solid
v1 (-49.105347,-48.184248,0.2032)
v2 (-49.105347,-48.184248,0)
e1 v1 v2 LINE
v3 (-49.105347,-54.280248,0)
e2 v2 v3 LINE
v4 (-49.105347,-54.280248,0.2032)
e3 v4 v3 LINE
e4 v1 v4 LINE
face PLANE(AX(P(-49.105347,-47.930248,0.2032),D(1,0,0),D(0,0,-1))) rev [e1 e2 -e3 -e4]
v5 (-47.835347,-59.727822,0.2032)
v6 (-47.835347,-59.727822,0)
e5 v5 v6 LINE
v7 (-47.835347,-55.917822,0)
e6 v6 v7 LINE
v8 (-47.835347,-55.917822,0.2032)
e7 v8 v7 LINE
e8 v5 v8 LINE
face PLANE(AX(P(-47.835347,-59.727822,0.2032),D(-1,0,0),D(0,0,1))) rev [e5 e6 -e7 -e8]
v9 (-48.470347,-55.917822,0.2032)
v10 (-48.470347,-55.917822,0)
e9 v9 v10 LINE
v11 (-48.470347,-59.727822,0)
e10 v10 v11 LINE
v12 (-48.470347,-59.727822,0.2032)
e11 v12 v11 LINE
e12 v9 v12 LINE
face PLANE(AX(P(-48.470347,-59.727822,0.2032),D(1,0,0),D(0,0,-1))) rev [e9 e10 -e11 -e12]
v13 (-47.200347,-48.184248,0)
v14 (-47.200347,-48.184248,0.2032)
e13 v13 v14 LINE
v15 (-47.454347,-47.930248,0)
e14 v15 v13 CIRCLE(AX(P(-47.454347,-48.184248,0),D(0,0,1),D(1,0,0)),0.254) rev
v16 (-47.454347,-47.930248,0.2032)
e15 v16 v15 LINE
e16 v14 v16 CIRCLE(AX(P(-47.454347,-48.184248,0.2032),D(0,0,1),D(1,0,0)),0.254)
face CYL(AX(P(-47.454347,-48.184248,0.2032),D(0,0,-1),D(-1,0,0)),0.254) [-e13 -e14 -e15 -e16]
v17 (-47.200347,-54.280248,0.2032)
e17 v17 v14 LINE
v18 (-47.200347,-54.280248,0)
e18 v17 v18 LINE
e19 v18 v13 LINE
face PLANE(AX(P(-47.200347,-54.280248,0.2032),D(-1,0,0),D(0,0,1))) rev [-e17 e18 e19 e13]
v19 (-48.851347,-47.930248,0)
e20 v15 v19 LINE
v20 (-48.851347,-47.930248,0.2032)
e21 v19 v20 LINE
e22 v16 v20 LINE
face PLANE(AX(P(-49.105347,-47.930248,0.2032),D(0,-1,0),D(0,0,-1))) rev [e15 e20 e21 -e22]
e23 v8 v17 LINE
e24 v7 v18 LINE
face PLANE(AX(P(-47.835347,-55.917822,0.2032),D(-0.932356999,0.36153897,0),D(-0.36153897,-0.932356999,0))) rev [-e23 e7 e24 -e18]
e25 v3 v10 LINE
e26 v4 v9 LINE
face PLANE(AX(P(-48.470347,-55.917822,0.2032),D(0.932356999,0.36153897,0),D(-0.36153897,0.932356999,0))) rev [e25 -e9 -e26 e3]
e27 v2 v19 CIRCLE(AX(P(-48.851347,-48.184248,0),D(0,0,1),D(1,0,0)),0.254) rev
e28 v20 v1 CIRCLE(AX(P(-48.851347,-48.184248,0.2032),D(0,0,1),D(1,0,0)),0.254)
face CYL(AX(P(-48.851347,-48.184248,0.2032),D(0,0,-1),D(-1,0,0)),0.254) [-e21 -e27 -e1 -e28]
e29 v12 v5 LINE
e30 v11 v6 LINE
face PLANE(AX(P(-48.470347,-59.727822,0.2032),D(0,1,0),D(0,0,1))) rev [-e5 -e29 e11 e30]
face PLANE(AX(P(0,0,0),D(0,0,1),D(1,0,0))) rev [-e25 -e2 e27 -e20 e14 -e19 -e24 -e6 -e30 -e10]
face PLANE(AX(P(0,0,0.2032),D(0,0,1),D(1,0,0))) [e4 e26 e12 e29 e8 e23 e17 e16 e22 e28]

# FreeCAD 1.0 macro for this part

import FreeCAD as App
import Part
import Sketcher
from FreeCAD import Vector
Q = App.Units.Quantity


def edges_at(feature, points):
    """Names of the edges that pass closest to the given points."""
    edges = feature.Shape.Edges
    near = lambda p: min(range(len(edges)), key=lambda i: edges[i].distToShape(Part.Vertex(*p))[0])
    return sorted({f"Edge{near(p) + 1}" for p in points})

doc = App.newDocument("Part")
body = doc.addObject("PartDesign::Body", "Body")

sketch1 = doc.addObject("Sketcher::SketchObject", "Sketch")
body.addObject(sketch1)
sketch1.AttachmentSupport = (doc.XY_Plane, [""])
sketch1.MapMode = "FlatFace"
sketch1.addGeometry(Part.LineSegment(Vector(-47.2, -47.9, 0), Vector(-49.1, -47.9, 0)), False)
sketch1.addGeometry(Part.LineSegment(Vector(-49.1, -47.9, 0), Vector(-49.1, -54.3, 0)), False)
sketch1.addGeometry(Part.LineSegment(Vector(-49.1, -54.3, 0), Vector(-48.5, -55.9, 0)), False)
sketch1.addGeometry(Part.LineSegment(Vector(-48.5, -55.9, 0), Vector(-48.5, -59.7, 0)), False)
sketch1.addGeometry(Part.LineSegment(Vector(-48.5, -59.7, 0), Vector(-47.8, -59.7, 0)), False)
sketch1.addGeometry(Part.LineSegment(Vector(-47.8, -59.7, 0), Vector(-47.8, -55.9, 0)), False)
sketch1.addGeometry(Part.LineSegment(Vector(-47.8, -55.9, 0), Vector(-47.2, -54.3, 0)), False)
sketch1.addGeometry(Part.LineSegment(Vector(-47.2, -54.3, 0), Vector(-47.2, -47.9, 0)), False)
sketch1.addConstraint(Sketcher.Constraint("Coincident", 0, 2, 1, 1))
sketch1.addConstraint(Sketcher.Constraint("Coincident", 1, 2, 2, 1))
sketch1.addConstraint(Sketcher.Constraint("Coincident", 2, 2, 3, 1))
sketch1.addConstraint(Sketcher.Constraint("Coincident", 3, 2, 4, 1))
sketch1.addConstraint(Sketcher.Constraint("Coincident", 4, 2, 5, 1))
sketch1.addConstraint(Sketcher.Constraint("Coincident", 5, 2, 6, 1))
sketch1.addConstraint(Sketcher.Constraint("Coincident", 6, 2, 7, 1))
sketch1.addConstraint(Sketcher.Constraint("Coincident", 7, 2, 0, 1))
sketch1.addConstraint(Sketcher.Constraint("Horizontal", 0))
sketch1.addConstraint(Sketcher.Constraint("Vertical", 1))
sketch1.addConstraint(Sketcher.Constraint("Vertical", 3))
sketch1.addConstraint(Sketcher.Constraint("Horizontal", 4))
sketch1.addConstraint(Sketcher.Constraint("Vertical", 5))
sketch1.addConstraint(Sketcher.Constraint("Vertical", 7))
sketch1.addConstraint(Sketcher.Constraint("Horizontal", 2, 2, 5, 2))
sketch1.addConstraint(Sketcher.Constraint("Horizontal", 1, 2, 6, 2))
sketch1.addConstraint(Sketcher.Constraint("Equal", 2, 6))
sketch1.addConstraint(Sketcher.Constraint("DistanceY", 1, 2, 1, 1, Q("0.25 in")))
sketch1.addConstraint(Sketcher.Constraint("DistanceY", 3, 2, 3, 1, Q("0.15 in")))
sketch1.addConstraint(Sketcher.Constraint("DistanceX", 0, 2, 0, 1, Q("0.075 in")))
sketch1.addConstraint(Sketcher.Constraint("DistanceX", 4, 1, 4, 2, Q("0.025 in")))
sketch1.addConstraint(Sketcher.Constraint("Distance", 2, 1.756381))
sketch1.addConstraint(Sketcher.Constraint("DistanceY", 0, 2, -1, 1, 47.930248))
sketch1.addConstraint(Sketcher.Constraint("DistanceX", 0, 2, -1, 1, 49.105347))
pad1 = doc.addObject("PartDesign::Pad", "Pad")
body.addObject(pad1)
pad1.Profile = sketch1
pad1.Length = Q("0.008 in")
doc.recompute()

fillet = doc.addObject("PartDesign::Fillet", "Fillet")
body.addObject(fillet)
fillet.Base = (pad1, edges_at(pad1, [(-49.105, -47.93, 0.102), (-47.2, -47.93, 0.102)]))
fillet.Radius = Q("0.01 in")

doc.recompute()
